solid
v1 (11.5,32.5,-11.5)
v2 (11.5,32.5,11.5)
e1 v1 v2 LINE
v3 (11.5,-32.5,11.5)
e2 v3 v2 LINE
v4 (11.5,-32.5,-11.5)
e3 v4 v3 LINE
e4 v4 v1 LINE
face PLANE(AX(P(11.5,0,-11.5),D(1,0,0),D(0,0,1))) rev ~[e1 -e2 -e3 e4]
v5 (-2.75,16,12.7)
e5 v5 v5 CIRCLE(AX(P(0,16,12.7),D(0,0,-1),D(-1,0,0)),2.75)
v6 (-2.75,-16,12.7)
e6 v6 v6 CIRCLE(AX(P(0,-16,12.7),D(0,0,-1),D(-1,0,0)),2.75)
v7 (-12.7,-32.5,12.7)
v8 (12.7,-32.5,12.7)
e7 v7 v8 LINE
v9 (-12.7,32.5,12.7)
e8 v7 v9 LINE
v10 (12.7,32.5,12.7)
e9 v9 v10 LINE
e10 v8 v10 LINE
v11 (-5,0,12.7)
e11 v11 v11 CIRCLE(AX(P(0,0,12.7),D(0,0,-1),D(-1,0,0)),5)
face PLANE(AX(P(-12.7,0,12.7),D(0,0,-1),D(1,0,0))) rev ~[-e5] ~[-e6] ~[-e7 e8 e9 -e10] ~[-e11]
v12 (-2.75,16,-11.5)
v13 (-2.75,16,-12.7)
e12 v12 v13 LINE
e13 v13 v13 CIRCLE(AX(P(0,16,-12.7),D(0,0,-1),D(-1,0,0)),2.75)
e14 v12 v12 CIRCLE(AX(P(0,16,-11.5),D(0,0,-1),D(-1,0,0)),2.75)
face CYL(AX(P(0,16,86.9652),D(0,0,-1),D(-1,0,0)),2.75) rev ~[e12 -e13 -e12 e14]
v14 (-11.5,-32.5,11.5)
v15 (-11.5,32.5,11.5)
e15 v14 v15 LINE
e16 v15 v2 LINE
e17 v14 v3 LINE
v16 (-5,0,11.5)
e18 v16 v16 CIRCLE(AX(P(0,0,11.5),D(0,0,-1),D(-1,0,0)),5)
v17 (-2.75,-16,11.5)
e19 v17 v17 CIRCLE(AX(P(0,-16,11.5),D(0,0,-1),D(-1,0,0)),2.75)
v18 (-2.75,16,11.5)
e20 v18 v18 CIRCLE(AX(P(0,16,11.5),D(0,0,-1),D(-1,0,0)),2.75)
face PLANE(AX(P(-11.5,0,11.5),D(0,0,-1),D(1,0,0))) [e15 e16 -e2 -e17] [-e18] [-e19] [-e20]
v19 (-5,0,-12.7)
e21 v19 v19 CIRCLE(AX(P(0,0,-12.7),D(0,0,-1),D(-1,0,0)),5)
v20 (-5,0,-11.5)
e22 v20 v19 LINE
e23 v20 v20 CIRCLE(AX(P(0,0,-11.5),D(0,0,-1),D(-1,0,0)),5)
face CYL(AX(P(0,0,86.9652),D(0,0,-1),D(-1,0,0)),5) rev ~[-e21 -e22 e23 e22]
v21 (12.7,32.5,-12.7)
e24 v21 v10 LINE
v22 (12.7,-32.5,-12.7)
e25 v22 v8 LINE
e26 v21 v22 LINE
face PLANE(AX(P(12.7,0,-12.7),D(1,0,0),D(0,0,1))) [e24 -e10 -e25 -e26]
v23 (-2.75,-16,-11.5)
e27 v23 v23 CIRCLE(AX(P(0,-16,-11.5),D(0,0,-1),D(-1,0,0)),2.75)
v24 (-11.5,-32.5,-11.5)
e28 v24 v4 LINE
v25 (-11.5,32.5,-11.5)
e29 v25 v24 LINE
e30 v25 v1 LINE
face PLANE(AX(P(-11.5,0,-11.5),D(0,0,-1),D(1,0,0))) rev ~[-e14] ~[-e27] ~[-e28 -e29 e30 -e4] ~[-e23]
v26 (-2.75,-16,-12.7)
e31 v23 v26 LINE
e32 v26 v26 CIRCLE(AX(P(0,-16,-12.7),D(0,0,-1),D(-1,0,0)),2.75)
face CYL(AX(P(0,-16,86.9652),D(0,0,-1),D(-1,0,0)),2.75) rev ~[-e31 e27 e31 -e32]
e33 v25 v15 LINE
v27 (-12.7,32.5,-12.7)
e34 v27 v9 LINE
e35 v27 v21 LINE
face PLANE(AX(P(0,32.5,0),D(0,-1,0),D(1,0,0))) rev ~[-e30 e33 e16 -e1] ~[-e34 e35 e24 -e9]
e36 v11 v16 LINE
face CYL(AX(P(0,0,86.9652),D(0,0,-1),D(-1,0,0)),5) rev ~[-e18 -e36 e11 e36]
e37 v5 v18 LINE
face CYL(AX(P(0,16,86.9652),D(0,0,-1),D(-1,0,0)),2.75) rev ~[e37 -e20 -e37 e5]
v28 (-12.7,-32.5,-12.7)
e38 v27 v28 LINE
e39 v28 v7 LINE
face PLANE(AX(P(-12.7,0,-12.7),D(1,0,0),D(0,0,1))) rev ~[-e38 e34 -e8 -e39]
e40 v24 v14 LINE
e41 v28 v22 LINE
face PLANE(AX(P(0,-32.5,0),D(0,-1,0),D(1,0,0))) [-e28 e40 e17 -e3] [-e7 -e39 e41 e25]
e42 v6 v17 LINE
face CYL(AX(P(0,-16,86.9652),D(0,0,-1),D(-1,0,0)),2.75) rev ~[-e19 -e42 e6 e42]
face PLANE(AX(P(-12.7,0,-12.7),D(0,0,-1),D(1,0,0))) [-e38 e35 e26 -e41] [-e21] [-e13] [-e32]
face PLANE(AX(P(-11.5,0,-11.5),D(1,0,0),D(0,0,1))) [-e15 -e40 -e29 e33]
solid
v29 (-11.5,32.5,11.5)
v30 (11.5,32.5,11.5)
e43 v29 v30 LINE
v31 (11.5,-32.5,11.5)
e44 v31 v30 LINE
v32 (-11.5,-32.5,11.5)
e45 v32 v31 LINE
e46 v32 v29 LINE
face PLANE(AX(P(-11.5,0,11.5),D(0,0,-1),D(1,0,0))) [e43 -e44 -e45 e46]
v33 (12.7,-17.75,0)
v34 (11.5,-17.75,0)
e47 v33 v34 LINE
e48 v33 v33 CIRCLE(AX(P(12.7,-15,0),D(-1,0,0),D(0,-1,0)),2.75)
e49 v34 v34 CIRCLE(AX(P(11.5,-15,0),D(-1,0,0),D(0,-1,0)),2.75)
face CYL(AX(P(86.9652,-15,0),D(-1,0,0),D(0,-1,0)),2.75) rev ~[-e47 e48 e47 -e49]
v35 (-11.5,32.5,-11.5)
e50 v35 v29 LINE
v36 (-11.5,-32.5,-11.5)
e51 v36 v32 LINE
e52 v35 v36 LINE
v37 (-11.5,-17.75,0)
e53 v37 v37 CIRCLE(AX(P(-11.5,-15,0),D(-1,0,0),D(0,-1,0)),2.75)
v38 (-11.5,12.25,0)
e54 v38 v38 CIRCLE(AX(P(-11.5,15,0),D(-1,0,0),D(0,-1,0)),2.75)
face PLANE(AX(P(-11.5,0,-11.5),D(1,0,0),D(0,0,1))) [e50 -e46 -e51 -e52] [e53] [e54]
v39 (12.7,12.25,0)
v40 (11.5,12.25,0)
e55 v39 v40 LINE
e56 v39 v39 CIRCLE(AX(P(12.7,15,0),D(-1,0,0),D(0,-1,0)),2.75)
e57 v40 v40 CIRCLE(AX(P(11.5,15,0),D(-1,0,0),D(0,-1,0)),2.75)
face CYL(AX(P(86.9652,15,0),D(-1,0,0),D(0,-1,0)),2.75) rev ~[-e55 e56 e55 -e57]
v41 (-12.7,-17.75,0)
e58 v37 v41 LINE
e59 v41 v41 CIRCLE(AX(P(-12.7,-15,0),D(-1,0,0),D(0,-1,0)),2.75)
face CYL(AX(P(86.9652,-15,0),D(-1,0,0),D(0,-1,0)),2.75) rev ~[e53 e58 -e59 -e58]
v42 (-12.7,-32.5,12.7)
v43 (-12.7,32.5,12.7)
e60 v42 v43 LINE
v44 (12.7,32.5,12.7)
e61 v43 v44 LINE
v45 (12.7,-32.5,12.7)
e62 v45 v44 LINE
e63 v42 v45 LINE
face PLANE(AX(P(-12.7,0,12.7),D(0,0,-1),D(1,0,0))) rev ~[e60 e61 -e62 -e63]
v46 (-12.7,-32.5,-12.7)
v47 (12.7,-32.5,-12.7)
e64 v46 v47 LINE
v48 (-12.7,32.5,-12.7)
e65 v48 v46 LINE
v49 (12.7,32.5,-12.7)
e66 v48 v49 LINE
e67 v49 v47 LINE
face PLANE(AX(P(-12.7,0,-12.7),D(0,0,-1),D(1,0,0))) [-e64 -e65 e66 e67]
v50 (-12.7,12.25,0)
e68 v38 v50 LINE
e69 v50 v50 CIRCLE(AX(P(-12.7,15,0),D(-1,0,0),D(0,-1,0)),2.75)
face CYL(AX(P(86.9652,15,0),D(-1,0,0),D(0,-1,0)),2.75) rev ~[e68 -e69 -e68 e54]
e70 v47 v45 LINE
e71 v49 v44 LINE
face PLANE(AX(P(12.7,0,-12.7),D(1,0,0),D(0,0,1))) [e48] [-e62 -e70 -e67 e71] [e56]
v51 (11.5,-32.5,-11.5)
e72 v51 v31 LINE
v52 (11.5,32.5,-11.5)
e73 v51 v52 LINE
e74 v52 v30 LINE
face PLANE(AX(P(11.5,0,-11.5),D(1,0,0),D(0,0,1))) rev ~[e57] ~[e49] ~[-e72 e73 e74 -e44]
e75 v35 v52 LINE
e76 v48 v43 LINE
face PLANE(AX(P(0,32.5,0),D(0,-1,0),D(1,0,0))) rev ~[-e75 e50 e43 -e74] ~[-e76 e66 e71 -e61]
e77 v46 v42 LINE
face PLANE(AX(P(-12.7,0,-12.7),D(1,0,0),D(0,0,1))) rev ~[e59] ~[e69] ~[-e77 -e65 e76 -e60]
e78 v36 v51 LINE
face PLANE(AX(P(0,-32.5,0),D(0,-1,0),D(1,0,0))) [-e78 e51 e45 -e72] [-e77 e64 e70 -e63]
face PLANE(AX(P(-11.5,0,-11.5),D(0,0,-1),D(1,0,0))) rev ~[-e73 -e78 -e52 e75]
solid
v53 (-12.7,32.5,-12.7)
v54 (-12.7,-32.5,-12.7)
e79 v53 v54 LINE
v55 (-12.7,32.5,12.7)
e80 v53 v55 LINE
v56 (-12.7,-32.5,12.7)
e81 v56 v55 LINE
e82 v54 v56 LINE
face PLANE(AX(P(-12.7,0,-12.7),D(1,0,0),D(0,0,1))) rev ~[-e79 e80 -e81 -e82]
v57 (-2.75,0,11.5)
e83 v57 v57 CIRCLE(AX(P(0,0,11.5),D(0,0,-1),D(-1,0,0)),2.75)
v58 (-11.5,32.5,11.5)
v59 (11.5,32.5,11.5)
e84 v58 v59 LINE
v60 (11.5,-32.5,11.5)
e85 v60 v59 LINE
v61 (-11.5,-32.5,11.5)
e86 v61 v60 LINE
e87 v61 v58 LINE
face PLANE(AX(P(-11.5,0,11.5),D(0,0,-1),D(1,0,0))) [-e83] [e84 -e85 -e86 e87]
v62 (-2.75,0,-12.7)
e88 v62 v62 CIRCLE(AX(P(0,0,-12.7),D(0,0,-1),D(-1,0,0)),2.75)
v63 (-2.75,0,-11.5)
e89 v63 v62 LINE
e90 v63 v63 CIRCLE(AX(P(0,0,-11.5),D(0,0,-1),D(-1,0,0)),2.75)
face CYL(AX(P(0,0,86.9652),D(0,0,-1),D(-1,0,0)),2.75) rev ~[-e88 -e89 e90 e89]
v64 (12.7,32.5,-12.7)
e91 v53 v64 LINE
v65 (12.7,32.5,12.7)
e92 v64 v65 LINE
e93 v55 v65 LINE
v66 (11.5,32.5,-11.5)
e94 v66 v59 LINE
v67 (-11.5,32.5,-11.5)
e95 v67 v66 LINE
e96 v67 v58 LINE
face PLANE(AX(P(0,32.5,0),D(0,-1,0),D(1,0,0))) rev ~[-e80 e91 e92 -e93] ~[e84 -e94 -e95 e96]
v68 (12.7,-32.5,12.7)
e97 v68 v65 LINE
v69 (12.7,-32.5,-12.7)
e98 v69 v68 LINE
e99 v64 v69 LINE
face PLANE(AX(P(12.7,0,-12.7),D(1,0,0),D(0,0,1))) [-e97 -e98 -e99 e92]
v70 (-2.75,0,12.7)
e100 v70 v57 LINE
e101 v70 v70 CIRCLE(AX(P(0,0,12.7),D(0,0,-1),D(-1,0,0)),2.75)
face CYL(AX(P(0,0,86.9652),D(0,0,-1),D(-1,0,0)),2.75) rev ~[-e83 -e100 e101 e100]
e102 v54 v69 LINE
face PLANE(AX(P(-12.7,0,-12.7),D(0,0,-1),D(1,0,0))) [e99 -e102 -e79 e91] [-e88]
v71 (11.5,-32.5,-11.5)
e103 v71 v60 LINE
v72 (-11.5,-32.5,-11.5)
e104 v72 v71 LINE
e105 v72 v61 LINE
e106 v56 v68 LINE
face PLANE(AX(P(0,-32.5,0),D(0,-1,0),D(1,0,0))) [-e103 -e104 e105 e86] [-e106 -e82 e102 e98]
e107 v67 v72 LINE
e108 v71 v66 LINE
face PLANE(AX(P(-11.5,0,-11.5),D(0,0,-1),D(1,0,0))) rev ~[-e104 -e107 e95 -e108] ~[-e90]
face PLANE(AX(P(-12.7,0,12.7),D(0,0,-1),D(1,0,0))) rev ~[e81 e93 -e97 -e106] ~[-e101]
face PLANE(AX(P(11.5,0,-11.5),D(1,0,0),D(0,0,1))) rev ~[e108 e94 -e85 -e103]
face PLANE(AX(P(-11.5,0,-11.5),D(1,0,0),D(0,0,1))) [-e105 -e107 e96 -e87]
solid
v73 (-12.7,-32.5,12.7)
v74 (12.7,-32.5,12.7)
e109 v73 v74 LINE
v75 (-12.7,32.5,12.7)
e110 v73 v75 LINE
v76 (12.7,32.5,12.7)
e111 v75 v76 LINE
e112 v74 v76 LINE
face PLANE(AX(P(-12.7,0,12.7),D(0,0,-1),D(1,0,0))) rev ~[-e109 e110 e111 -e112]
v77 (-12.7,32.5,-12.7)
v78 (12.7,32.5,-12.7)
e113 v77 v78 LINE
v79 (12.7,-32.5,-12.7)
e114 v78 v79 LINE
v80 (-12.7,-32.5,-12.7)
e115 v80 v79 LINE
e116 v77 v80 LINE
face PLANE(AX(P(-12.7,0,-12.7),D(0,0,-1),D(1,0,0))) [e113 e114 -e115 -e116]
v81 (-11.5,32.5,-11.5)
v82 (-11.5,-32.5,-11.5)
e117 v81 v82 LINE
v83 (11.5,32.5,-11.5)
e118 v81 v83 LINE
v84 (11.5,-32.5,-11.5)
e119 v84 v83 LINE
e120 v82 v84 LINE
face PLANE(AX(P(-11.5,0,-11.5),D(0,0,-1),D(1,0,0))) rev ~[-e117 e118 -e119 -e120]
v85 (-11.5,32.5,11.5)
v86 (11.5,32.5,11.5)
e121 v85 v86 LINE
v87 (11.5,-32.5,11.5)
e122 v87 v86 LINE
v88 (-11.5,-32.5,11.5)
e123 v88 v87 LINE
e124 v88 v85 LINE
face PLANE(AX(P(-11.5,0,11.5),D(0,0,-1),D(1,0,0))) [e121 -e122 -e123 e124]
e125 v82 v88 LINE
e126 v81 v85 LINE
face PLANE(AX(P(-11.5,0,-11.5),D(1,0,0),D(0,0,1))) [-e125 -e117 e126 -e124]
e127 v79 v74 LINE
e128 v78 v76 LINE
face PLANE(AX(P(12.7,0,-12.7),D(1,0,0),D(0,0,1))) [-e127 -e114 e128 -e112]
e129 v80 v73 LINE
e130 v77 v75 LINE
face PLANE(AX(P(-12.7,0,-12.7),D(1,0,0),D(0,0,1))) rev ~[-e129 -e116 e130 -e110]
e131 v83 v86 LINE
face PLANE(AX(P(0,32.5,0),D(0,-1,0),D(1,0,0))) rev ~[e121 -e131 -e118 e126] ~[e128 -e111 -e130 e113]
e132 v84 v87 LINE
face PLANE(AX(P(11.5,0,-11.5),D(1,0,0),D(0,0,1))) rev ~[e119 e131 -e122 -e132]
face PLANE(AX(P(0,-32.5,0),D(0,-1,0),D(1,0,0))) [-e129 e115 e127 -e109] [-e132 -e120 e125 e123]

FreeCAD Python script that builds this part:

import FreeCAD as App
import Part
import Sketcher

V = App.Vector
Q = App.Units.Quantity


def add_polygon(sketch, points):
    """Adds a closed chain of lines whose ends are joined by coincident constraints."""
    first, n = sketch.GeometryCount, len(points)
    for a, b in zip(points, points[1:] + points[:1]):
        sketch.addGeometry(Part.LineSegment(App.Vector(*a, 0), App.Vector(*b, 0)), False)
    for i in range(n):
        sketch.addConstraint(Sketcher.Constraint("Coincident", first + i, 2, first + (i + 1) % n, 1))

doc = App.newDocument("Part")
body = doc.addObject("PartDesign::Body", "Body")

sketch1 = body.newObject("Sketcher::SketchObject", "Sketch")
sketch1.AttachmentSupport = (doc.getObject("XZ_Plane"), [""])
sketch1.MapMode = "FlatFace"
add_polygon(sketch1, [(-12.7, 12.7), (-12.7, -12.7), (12.7, -12.7), (12.7, 12.7)])
add_polygon(sketch1, [(11.5, -11.5), (-11.5, -11.5), (-11.5, 11.5), (11.5, 11.5)])
sketch1.addConstraint(Sketcher.Constraint("Vertical", 0))
sketch1.addConstraint(Sketcher.Constraint("Horizontal", 1))
sketch1.addConstraint(Sketcher.Constraint("Vertical", 2))
sketch1.addConstraint(Sketcher.Constraint("Horizontal", 3))
sketch1.addConstraint(Sketcher.Constraint("Horizontal", 4))
sketch1.addConstraint(Sketcher.Constraint("Vertical", 5))
sketch1.addConstraint(Sketcher.Constraint("Horizontal", 6))
sketch1.addConstraint(Sketcher.Constraint("Vertical", 7))
sketch1.addConstraint(Sketcher.Constraint("Symmetric", 0, 2, 2, 2, -1, 1))
sketch1.addConstraint(Sketcher.Constraint("Symmetric", 4, 2, 6, 2, -1, 1))
sketch1.addConstraint(Sketcher.Constraint("Equal", 3, 0))
sketch1.addConstraint(Sketcher.Constraint("Equal", 6, 5))
sketch1.addConstraint(Sketcher.Constraint("DistanceX", 4, 2, 4, 1, Q("23 mm")))
sketch1.addConstraint(Sketcher.Constraint("DistanceX", 1, 1, 1, 2, Q("25.4 mm")))
pad1 = body.newObject("PartDesign::Pad", "Pad")
pad1.Profile = sketch1
pad1.Length = 65
pad1.Midplane = True
body2 = doc.addObject("PartDesign::Body", "Body001")

sketch2 = body2.newObject("Sketcher::SketchObject", "Sketch001")
sketch2.AttachmentSupport = (doc.getObject("XZ_Plane001"), [""])
sketch2.MapMode = "FlatFace"
add_polygon(sketch2, [(-12.7, 12.7), (-12.7, -12.7), (12.7, -12.7), (12.7, 12.7)])
add_polygon(sketch2, [(11.5, -11.5), (-11.5, -11.5), (-11.5, 11.5), (11.5, 11.5)])
sketch2.addConstraint(Sketcher.Constraint("Vertical", 0))
sketch2.addConstraint(Sketcher.Constraint("Horizontal", 1))
sketch2.addConstraint(Sketcher.Constraint("Vertical", 2))
sketch2.addConstraint(Sketcher.Constraint("Horizontal", 3))
sketch2.addConstraint(Sketcher.Constraint("Horizontal", 4))
sketch2.addConstraint(Sketcher.Constraint("Vertical", 5))
sketch2.addConstraint(Sketcher.Constraint("Horizontal", 6))
sketch2.addConstraint(Sketcher.Constraint("Vertical", 7))
sketch2.addConstraint(Sketcher.Constraint("Symmetric", 0, 2, 2, 2, -1, 1))
sketch2.addConstraint(Sketcher.Constraint("Symmetric", 4, 2, 6, 2, -1, 1))
sketch2.addConstraint(Sketcher.Constraint("Equal", 3, 0))
sketch2.addConstraint(Sketcher.Constraint("Equal", 6, 5))
sketch2.addConstraint(Sketcher.Constraint("DistanceX", 4, 2, 4, 1, Q("23 mm")))
sketch2.addConstraint(Sketcher.Constraint("DistanceX", 1, 1, 1, 2, Q("25.4 mm")))
pad2 = body2.newObject("PartDesign::Pad", "Pad001")
pad2.Profile = sketch2
pad2.Length = 65
pad2.Midplane = True

sketch3 = body2.newObject("Sketcher::SketchObject", "Sketch002")
sketch3.AttachmentSupport = (doc.getObject("XY_Plane001"), [""])
sketch3.MapMode = "FlatFace"
sketch3.AttachmentOffset = App.Placement(V(0, 0, 12.7), App.Rotation())
sketch3.addGeometry(Part.Circle(V(0, -16, 0), V(0, 0, 1), 2.75), False)
sketch3.addGeometry(Part.Circle(V(0, 16, 0), V(0, 0, 1), 2.75), False)
sketch3.addConstraint(Sketcher.Constraint("Equal", 0, 1))
sketch3.addConstraint(Sketcher.Constraint("Symmetric", 0, 3, 1, 3, -1, 1))
sketch3.addConstraint(Sketcher.Constraint("PointOnObject", 0, 3, -2))
sketch3.addConstraint(Sketcher.Constraint("Diameter", 0, Q("5.5 mm")))
sketch3.addConstraint(Sketcher.Constraint("DistanceY", 0, 3, -1, 1, Q("16 mm")))
doc.recompute()
hole = body2.newObject("PartDesign::Hole", "Hole")
hole.Profile = sketch3
hole.ThreadType = "None"
hole.Diameter = 5.5
hole.DepthType = "ThroughAll"

sketch4 = body2.newObject("Sketcher::SketchObject", "Sketch003")
sketch4.AttachmentSupport = (doc.getObject("XY_Plane001"), [""])
sketch4.MapMode = "FlatFace"
sketch4.AttachmentOffset = App.Placement(V(0, 0, 12.7), App.Rotation())
sketch4.addGeometry(Part.Circle(V(0, 0, 0), V(0, 0, 1), 5), False)
sketch4.addConstraint(Sketcher.Constraint("Coincident", 0, 3, -1, 1))
sketch4.addConstraint(Sketcher.Constraint("Diameter", 0, Q("10 mm")))
doc.recompute()
hole2 = body2.newObject("PartDesign::Hole", "Hole001")
hole2.Profile = sketch4
hole2.ThreadType = "None"
hole2.Diameter = 10
hole2.DepthType = "ThroughAll"
body3 = doc.addObject("PartDesign::Body", "Body002")

sketch5 = body3.newObject("Sketcher::SketchObject", "Sketch004")
sketch5.AttachmentSupport = (doc.getObject("XZ_Plane002"), [""])
sketch5.MapMode = "FlatFace"
add_polygon(sketch5, [(-12.7, 12.7), (-12.7, -12.7), (12.7, -12.7), (12.7, 12.7)])
add_polygon(sketch5, [(11.5, -11.5), (-11.5, -11.5), (-11.5, 11.5), (11.5, 11.5)])
sketch5.addConstraint(Sketcher.Constraint("Vertical", 0))
sketch5.addConstraint(Sketcher.Constraint("Horizontal", 1))
sketch5.addConstraint(Sketcher.Constraint("Vertical", 2))
sketch5.addConstraint(Sketcher.Constraint("Horizontal", 3))
sketch5.addConstraint(Sketcher.Constraint("Horizontal", 4))
sketch5.addConstraint(Sketcher.Constraint("Vertical", 5))
sketch5.addConstraint(Sketcher.Constraint("Horizontal", 6))
sketch5.addConstraint(Sketcher.Constraint("Vertical", 7))
sketch5.addConstraint(Sketcher.Constraint("Symmetric", 0, 2, 2, 2, -1, 1))
sketch5.addConstraint(Sketcher.Constraint("Symmetric", 4, 2, 6, 2, -1, 1))
sketch5.addConstraint(Sketcher.Constraint("Equal", 3, 0))
sketch5.addConstraint(Sketcher.Constraint("Equal", 6, 5))
sketch5.addConstraint(Sketcher.Constraint("DistanceX", 4, 2, 4, 1, Q("23 mm")))
sketch5.addConstraint(Sketcher.Constraint("DistanceX", 1, 1, 1, 2, Q("25.4 mm")))
pad3 = body3.newObject("PartDesign::Pad", "Pad002")
pad3.Profile = sketch5
pad3.Length = 65
pad3.Midplane = True

sketch6 = body3.newObject("Sketcher::SketchObject", "Sketch005")
sketch6.AttachmentSupport = (doc.getObject("YZ_Plane002"), [""])
sketch6.MapMode = "FlatFace"
sketch6.AttachmentOffset = App.Placement(V(0, 0, 12.7), App.Rotation())
sketch6.addGeometry(Part.Circle(V(-15, 0, 0), V(0, 0, 1), 2.75), False)
sketch6.addGeometry(Part.Circle(V(15, 0, 0), V(0, 0, 1), 2.75), False)
sketch6.addConstraint(Sketcher.Constraint("Equal", 0, 1))
sketch6.addConstraint(Sketcher.Constraint("Symmetric", 0, 3, 1, 3, -1, 1))
sketch6.addConstraint(Sketcher.Constraint("PointOnObject", 0, 3, -1))
sketch6.addConstraint(Sketcher.Constraint("Diameter", 0, Q("5.5 mm")))
sketch6.addConstraint(Sketcher.Constraint("DistanceX", 0, 3, -1, 1, Q("15 mm")))
doc.recompute()
hole3 = body3.newObject("PartDesign::Hole", "Hole002")
hole3.Profile = sketch6
hole3.ThreadType = "None"
hole3.Diameter = 5.5
hole3.DepthType = "ThroughAll"
body4 = doc.addObject("PartDesign::Body", "Body003")

sketch7 = body4.newObject("Sketcher::SketchObject", "Sketch006")
sketch7.AttachmentSupport = (doc.getObject("XZ_Plane003"), [""])
sketch7.MapMode = "FlatFace"
add_polygon(sketch7, [(-12.7, 12.7), (-12.7, -12.7), (12.7, -12.7), (12.7, 12.7)])
add_polygon(sketch7, [(11.5, -11.5), (-11.5, -11.5), (-11.5, 11.5), (11.5, 11.5)])
sketch7.addConstraint(Sketcher.Constraint("Vertical", 0))
sketch7.addConstraint(Sketcher.Constraint("Horizontal", 1))
sketch7.addConstraint(Sketcher.Constraint("Vertical", 2))
sketch7.addConstraint(Sketcher.Constraint("Horizontal", 3))
sketch7.addConstraint(Sketcher.Constraint("Horizontal", 4))
sketch7.addConstraint(Sketcher.Constraint("Vertical", 5))
sketch7.addConstraint(Sketcher.Constraint("Horizontal", 6))
sketch7.addConstraint(Sketcher.Constraint("Vertical", 7))
sketch7.addConstraint(Sketcher.Constraint("Symmetric", 0, 2, 2, 2, -1, 1))
sketch7.addConstraint(Sketcher.Constraint("Symmetric", 4, 2, 6, 2, -1, 1))
sketch7.addConstraint(Sketcher.Constraint("Equal", 3, 0))
sketch7.addConstraint(Sketcher.Constraint("Equal", 6, 5))
sketch7.addConstraint(Sketcher.Constraint("DistanceX", 4, 2, 4, 1, Q("23 mm")))
sketch7.addConstraint(Sketcher.Constraint("DistanceX", 1, 1, 1, 2, Q("25.4 mm")))
pad4 = body4.newObject("PartDesign::Pad", "Pad003")
pad4.Profile = sketch7
pad4.Length = 65
pad4.Midplane = True

sketch8 = body4.newObject("Sketcher::SketchObject", "Sketch007")
sketch8.AttachmentSupport = (doc.getObject("XY_Plane003"), [""])
sketch8.MapMode = "FlatFace"
sketch8.AttachmentOffset = App.Placement(V(0, 0, 12.7), App.Rotation())
sketch8.addGeometry(Part.Circle(V(0, 0, 0), V(0, 0, 1), 2.75), False)
sketch8.addConstraint(Sketcher.Constraint("Coincident", 0, 3, -1, 1))
sketch8.addConstraint(Sketcher.Constraint("Diameter", 0, Q("5.5 mm")))
doc.recompute()
hole4 = body4.newObject("PartDesign::Hole", "Hole003")
hole4.Profile = sketch8
hole4.ThreadType = "None"
hole4.Diameter = 5.5
hole4.DepthType = "ThroughAll"

doc.recompute()
